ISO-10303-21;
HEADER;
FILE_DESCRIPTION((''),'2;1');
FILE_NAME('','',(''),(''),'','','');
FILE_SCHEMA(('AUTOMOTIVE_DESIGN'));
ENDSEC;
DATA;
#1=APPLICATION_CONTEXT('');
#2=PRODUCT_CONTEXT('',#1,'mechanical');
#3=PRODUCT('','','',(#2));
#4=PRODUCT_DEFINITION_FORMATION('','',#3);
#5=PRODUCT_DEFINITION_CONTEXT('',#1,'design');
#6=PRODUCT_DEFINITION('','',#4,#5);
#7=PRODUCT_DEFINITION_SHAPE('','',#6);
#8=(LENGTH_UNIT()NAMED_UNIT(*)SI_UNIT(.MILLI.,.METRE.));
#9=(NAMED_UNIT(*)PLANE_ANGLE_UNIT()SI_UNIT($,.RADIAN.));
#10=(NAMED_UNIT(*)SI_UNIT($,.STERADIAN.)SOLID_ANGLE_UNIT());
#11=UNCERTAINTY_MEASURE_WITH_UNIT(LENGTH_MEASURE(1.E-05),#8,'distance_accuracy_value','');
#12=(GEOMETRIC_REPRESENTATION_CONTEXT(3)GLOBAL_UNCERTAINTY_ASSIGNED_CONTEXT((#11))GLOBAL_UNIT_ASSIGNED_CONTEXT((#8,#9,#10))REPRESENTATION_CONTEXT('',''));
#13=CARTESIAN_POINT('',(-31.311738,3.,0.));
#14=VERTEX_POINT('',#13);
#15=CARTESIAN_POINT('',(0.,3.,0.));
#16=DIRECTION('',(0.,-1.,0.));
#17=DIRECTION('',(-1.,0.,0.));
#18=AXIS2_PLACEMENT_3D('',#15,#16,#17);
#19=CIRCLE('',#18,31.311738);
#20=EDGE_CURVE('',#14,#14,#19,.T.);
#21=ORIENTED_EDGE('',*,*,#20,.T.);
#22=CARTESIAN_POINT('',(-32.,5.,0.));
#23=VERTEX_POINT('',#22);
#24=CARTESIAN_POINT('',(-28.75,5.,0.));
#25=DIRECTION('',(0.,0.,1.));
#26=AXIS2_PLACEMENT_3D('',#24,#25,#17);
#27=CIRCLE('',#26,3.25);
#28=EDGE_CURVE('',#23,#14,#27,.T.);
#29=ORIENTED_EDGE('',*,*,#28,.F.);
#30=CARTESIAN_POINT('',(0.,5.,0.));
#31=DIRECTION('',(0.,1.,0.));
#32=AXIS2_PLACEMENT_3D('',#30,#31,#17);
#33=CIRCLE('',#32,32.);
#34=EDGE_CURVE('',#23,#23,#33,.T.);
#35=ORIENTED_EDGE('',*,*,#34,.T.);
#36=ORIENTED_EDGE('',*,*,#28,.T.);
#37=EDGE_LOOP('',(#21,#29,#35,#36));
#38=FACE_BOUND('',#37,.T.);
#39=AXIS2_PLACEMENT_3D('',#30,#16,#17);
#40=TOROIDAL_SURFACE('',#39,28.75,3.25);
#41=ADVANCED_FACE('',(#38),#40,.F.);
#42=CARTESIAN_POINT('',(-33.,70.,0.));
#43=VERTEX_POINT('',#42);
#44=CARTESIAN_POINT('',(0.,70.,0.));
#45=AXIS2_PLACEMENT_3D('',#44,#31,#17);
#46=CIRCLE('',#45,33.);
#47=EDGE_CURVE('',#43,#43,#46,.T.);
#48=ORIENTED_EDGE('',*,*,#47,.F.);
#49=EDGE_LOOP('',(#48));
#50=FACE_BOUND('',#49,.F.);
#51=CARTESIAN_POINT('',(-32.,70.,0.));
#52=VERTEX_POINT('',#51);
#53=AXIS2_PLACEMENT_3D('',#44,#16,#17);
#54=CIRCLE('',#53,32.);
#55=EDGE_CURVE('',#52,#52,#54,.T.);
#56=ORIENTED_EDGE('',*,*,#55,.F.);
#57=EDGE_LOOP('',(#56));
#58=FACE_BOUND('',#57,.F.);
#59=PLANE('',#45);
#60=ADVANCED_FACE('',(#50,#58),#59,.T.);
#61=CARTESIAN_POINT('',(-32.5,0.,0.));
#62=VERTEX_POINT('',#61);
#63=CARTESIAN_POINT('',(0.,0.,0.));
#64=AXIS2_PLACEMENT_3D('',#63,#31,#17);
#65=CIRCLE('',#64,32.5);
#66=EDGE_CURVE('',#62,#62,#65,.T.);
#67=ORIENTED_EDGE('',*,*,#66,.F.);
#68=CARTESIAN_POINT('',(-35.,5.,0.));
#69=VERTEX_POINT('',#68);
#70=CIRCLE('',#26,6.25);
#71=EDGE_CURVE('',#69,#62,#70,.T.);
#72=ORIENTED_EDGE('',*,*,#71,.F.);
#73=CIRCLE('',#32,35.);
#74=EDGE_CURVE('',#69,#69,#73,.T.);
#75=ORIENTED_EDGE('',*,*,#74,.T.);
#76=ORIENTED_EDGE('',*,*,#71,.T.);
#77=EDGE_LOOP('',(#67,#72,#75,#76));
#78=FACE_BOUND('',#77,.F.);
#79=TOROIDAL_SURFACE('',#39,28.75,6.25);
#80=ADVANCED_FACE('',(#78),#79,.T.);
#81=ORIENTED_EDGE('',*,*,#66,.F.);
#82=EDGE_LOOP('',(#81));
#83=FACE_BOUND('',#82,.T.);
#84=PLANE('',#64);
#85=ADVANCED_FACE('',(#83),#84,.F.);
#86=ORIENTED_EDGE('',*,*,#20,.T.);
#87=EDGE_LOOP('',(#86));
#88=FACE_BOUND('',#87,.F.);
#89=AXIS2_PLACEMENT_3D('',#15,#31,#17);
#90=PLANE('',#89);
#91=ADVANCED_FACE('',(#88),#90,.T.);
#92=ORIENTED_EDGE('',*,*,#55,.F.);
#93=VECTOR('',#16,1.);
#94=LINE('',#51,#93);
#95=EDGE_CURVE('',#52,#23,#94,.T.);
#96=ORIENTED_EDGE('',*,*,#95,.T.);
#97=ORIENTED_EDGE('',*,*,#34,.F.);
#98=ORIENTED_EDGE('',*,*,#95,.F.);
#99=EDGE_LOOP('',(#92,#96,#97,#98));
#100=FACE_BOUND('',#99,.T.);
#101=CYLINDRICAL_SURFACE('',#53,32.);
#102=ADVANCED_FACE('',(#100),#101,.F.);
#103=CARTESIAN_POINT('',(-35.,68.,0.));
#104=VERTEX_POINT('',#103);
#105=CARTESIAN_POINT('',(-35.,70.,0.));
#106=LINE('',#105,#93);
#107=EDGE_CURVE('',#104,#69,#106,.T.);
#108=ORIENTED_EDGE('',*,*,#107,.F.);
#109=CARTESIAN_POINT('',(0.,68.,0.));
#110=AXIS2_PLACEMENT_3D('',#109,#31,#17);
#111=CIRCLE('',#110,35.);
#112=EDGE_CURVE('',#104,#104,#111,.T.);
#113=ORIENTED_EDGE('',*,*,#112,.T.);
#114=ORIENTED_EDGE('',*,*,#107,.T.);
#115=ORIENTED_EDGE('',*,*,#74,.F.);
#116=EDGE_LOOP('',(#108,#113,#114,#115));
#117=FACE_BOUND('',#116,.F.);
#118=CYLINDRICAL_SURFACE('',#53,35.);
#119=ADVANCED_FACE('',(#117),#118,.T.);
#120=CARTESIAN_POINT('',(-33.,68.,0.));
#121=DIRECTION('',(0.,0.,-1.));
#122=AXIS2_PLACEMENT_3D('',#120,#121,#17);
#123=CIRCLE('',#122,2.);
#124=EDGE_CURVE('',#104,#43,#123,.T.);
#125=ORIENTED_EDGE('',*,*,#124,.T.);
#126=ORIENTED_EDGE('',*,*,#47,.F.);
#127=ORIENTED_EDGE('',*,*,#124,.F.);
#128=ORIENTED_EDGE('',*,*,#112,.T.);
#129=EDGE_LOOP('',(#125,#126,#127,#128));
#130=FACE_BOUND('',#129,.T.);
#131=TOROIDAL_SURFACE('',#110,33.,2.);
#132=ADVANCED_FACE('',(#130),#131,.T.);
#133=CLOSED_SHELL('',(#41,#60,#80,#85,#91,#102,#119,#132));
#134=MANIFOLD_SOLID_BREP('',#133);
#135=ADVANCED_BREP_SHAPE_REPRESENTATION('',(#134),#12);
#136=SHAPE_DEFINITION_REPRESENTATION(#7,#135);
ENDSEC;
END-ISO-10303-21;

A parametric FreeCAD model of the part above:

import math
import FreeCAD as App
import Part
import Sketcher
Q = App.Units.Quantity


def edges_at(feature, points):
    """Names of the edges that pass closest to the given points."""
    edges = feature.Shape.Edges
    near = lambda p: min(range(len(edges)), key=lambda i: edges[i].distToShape(Part.Vertex(*p))[0])
    return sorted({f"Edge{near(p) + 1}" for p in points})


def faces_at(feature, points):
    """Names of the faces that lie closest to the given points."""
    faces = feature.Shape.Faces
    near = lambda p: min(range(len(faces)), key=lambda i: faces[i].distToShape(Part.Vertex(*p))[0])
    return sorted({f"Face{near(p) + 1}" for p in points})

doc = App.newDocument("Part")
body = doc.addObject("PartDesign::Body", "Body")

# Sketch on XY plane
sketch1 = body.newObject("Sketcher::SketchObject", "Sketch")
sketch1.AttachmentSupport = (doc.getObject("XY_Plane"), [""])
sketch1.MapMode = "FlatFace"
sketch1.addGeometry([
    Part.LineSegment(App.Vector(-32, 0, 0), App.Vector(0, 0, 0)),  # 0
    Part.LineSegment(App.Vector(0, 0, 0), App.Vector(0, 70, 0)),  # 1
    Part.LineSegment(App.Vector(0, 70, 0), App.Vector(-35, 70, 0)),  # 2
    Part.LineSegment(App.Vector(-35, 70, 0), App.Vector(-35, 5, 0)),  # 3
    Part.ArcOfCircle(Part.Circle(App.Vector(-29, 5, 0), App.Vector(0, 0, 1), 6), math.radians(180), math.radians(233)),  # 4
], False)
sketch1.addConstraint([
    Sketcher.Constraint("Coincident", 0, 2, 1, 1),
    Sketcher.Constraint("Coincident", 1, 2, 2, 1),
    Sketcher.Constraint("Coincident", 2, 2, 3, 1),
    Sketcher.Constraint("Tangent", 3, 2, 4, 1),
    Sketcher.Constraint("Coincident", 4, 2, 0, 1),
    Sketcher.Constraint("Horizontal", 0),
    Sketcher.Constraint("Vertical", 1),
    Sketcher.Constraint("Horizontal", 2),
    Sketcher.Constraint("Vertical", 3),
    Sketcher.Constraint("Coincident", 0, 2, -1, 1),
    Sketcher.Constraint("DistanceX", 2, 2, 2, 1, Q("35 mm")),
    Sketcher.Constraint("DistanceY", 1, 1, 1, 2, Q("70 mm")),
    Sketcher.Constraint("DistanceY", 3, 2, 3, 1, Q("65 mm")),
    Sketcher.Constraint("DistanceX", 0, 1, 0, 2, Q("32.5 mm")),
])
revolution = body.newObject("PartDesign::Revolution", "Revolution")
revolution.Profile = sketch1
revolution.ReferenceAxis = (sketch1, ["V_Axis"])
revolution.Angle = 360
doc.recompute()

thickness = body.newObject("PartDesign::Thickness", "Thickness")
thickness.Base = (revolution, faces_at(revolution, [(-0.275, 70, -9.358)]))
thickness.Value = 3
thickness.Reversed = True
thickness.Join = "Intersection"
doc.recompute()

fillet = body.newObject("PartDesign::Fillet", "Fillet")
fillet.Base = (thickness, edges_at(thickness, [(35, 70, 0)]))
fillet.Radius = 2

doc.recompute()
